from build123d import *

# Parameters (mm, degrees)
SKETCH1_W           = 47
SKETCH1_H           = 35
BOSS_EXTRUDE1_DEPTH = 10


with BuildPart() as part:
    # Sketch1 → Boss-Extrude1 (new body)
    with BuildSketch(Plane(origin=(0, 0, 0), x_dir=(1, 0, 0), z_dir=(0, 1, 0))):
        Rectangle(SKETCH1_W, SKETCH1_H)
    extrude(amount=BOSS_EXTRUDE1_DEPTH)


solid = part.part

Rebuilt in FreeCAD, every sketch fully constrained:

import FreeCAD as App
import Part
import Sketcher


def add_polygon(sketch, points):
    """Adds a closed chain of lines whose ends are joined by coincident constraints."""
    first, n = sketch.GeometryCount, len(points)
    for a, b in zip(points, points[1:] + points[:1]):
        sketch.addGeometry(Part.LineSegment(App.Vector(*a, 0), App.Vector(*b, 0)), False)
    for i in range(n):
        sketch.addConstraint(Sketcher.Constraint("Coincident", first + i, 2, first + (i + 1) % n, 1))

doc = App.newDocument("Part")
params = doc.addObject("Spreadsheet::Sheet", "Params")
for row, (alias, value) in enumerate([
    ("sketch1_width", "47 mm"),
    ("sketch1_height", "35 mm"),
    ("pad1_length", "10 mm"),
], start=1):
    params.set(f"A{row}", alias)
    params.set(f"B{row}", "=" + value)
    params.setAlias(f"B{row}", alias)

body = doc.addObject("PartDesign::Body", "Body")

sketch1 = body.newObject("Sketcher::SketchObject", "Sketch")
sketch1.AttachmentSupport = (doc.getObject("XZ_Plane"), [""])
sketch1.MapMode = "FlatFace"
add_polygon(sketch1, [(-24, -18), (-24, 18), (24, 18), (24, -18)])
sketch1.addConstraint([
    Sketcher.Constraint("Vertical", 0),
    Sketcher.Constraint("Horizontal", 1),
    Sketcher.Constraint("Vertical", 2),
    Sketcher.Constraint("Horizontal", 3),
    Sketcher.Constraint("Symmetric", 0, 2, 2, 2, -1, 1),
    Sketcher.Constraint("DistanceX", 1, 1, 1, 2, 47.0),
    Sketcher.Constraint("DistanceY", 0, 1, 0, 2, 35.0),
])
sketch1.setExpression("Constraints[9]", "Params.sketch1_width")
sketch1.setExpression("Constraints[10]", "Params.sketch1_height")
pad1 = body.newObject("PartDesign::Pad", "Pad")
pad1.Profile = sketch1
pad1.setExpression("Length", "Params.pad1_length")
pad1.Reversed = True

doc.recompute()
